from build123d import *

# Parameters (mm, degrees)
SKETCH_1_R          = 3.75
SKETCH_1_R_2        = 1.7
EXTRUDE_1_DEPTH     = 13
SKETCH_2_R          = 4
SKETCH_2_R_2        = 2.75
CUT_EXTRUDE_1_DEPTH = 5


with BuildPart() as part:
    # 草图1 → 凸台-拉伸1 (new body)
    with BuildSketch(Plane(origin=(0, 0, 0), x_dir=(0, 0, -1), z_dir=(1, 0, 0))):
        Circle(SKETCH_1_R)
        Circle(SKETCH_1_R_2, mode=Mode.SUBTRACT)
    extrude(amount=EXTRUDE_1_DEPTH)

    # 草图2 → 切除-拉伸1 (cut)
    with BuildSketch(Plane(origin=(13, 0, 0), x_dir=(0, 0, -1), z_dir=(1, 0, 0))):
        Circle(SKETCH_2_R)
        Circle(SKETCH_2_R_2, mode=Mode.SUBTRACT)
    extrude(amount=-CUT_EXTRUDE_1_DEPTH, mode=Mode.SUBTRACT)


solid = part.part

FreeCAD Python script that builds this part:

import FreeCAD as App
import Part
import Sketcher
from FreeCAD import Vector

doc = App.newDocument("Part")
body = doc.addObject("PartDesign::Body", "Body")

sketch1 = body.newObject("Sketcher::SketchObject", "Sketch")
sketch1.AttachmentSupport = (doc.getObject("YZ_Plane"), [""])
sketch1.MapMode = "FlatFace"
sketch1.addGeometry([
    Part.Circle(Vector(0, 0, 0), Vector(0, 0, 1), 3.8),
    Part.Circle(Vector(0, 0, 0), Vector(0, 0, 1), 1.7),
], False)
sketch1.addConstraint([
    Sketcher.Constraint("Coincident", 0, 3, -1, 1),
    Sketcher.Constraint("Coincident", 1, 3, -1, 1),
    Sketcher.Constraint("Diameter", 0, 7.5),
    Sketcher.Constraint("Diameter", 1, 3.4),
])
pad1 = body.newObject("PartDesign::Pad", "Pad")
pad1.Profile = sketch1
pad1.Length = 13

sketch2 = body.newObject("Sketcher::SketchObject", "Sketch001")
sketch2.AttachmentSupport = (doc.getObject("YZ_Plane"), [""])
sketch2.MapMode = "FlatFace"
sketch2.AttachmentOffset = App.Placement(Vector(0, 0, 13), App.Rotation())
sketch2.addGeometry([
    Part.Circle(Vector(0, 0, 0), Vector(0, 0, 1), 4),
    Part.Circle(Vector(0, 0, 0), Vector(0, 0, 1), 2.8),
], False)
sketch2.addConstraint([
    Sketcher.Constraint("Coincident", 0, 3, -1, 1),
    Sketcher.Constraint("Coincident", 1, 3, -1, 1),
    Sketcher.Constraint("Diameter", 0, 8.0),
    Sketcher.Constraint("Diameter", 1, 5.5),
])
pocket1 = body.newObject("PartDesign::Pocket", "Pocket")
pocket1.Profile = sketch2
pocket1.Length = 5

doc.recompute()
